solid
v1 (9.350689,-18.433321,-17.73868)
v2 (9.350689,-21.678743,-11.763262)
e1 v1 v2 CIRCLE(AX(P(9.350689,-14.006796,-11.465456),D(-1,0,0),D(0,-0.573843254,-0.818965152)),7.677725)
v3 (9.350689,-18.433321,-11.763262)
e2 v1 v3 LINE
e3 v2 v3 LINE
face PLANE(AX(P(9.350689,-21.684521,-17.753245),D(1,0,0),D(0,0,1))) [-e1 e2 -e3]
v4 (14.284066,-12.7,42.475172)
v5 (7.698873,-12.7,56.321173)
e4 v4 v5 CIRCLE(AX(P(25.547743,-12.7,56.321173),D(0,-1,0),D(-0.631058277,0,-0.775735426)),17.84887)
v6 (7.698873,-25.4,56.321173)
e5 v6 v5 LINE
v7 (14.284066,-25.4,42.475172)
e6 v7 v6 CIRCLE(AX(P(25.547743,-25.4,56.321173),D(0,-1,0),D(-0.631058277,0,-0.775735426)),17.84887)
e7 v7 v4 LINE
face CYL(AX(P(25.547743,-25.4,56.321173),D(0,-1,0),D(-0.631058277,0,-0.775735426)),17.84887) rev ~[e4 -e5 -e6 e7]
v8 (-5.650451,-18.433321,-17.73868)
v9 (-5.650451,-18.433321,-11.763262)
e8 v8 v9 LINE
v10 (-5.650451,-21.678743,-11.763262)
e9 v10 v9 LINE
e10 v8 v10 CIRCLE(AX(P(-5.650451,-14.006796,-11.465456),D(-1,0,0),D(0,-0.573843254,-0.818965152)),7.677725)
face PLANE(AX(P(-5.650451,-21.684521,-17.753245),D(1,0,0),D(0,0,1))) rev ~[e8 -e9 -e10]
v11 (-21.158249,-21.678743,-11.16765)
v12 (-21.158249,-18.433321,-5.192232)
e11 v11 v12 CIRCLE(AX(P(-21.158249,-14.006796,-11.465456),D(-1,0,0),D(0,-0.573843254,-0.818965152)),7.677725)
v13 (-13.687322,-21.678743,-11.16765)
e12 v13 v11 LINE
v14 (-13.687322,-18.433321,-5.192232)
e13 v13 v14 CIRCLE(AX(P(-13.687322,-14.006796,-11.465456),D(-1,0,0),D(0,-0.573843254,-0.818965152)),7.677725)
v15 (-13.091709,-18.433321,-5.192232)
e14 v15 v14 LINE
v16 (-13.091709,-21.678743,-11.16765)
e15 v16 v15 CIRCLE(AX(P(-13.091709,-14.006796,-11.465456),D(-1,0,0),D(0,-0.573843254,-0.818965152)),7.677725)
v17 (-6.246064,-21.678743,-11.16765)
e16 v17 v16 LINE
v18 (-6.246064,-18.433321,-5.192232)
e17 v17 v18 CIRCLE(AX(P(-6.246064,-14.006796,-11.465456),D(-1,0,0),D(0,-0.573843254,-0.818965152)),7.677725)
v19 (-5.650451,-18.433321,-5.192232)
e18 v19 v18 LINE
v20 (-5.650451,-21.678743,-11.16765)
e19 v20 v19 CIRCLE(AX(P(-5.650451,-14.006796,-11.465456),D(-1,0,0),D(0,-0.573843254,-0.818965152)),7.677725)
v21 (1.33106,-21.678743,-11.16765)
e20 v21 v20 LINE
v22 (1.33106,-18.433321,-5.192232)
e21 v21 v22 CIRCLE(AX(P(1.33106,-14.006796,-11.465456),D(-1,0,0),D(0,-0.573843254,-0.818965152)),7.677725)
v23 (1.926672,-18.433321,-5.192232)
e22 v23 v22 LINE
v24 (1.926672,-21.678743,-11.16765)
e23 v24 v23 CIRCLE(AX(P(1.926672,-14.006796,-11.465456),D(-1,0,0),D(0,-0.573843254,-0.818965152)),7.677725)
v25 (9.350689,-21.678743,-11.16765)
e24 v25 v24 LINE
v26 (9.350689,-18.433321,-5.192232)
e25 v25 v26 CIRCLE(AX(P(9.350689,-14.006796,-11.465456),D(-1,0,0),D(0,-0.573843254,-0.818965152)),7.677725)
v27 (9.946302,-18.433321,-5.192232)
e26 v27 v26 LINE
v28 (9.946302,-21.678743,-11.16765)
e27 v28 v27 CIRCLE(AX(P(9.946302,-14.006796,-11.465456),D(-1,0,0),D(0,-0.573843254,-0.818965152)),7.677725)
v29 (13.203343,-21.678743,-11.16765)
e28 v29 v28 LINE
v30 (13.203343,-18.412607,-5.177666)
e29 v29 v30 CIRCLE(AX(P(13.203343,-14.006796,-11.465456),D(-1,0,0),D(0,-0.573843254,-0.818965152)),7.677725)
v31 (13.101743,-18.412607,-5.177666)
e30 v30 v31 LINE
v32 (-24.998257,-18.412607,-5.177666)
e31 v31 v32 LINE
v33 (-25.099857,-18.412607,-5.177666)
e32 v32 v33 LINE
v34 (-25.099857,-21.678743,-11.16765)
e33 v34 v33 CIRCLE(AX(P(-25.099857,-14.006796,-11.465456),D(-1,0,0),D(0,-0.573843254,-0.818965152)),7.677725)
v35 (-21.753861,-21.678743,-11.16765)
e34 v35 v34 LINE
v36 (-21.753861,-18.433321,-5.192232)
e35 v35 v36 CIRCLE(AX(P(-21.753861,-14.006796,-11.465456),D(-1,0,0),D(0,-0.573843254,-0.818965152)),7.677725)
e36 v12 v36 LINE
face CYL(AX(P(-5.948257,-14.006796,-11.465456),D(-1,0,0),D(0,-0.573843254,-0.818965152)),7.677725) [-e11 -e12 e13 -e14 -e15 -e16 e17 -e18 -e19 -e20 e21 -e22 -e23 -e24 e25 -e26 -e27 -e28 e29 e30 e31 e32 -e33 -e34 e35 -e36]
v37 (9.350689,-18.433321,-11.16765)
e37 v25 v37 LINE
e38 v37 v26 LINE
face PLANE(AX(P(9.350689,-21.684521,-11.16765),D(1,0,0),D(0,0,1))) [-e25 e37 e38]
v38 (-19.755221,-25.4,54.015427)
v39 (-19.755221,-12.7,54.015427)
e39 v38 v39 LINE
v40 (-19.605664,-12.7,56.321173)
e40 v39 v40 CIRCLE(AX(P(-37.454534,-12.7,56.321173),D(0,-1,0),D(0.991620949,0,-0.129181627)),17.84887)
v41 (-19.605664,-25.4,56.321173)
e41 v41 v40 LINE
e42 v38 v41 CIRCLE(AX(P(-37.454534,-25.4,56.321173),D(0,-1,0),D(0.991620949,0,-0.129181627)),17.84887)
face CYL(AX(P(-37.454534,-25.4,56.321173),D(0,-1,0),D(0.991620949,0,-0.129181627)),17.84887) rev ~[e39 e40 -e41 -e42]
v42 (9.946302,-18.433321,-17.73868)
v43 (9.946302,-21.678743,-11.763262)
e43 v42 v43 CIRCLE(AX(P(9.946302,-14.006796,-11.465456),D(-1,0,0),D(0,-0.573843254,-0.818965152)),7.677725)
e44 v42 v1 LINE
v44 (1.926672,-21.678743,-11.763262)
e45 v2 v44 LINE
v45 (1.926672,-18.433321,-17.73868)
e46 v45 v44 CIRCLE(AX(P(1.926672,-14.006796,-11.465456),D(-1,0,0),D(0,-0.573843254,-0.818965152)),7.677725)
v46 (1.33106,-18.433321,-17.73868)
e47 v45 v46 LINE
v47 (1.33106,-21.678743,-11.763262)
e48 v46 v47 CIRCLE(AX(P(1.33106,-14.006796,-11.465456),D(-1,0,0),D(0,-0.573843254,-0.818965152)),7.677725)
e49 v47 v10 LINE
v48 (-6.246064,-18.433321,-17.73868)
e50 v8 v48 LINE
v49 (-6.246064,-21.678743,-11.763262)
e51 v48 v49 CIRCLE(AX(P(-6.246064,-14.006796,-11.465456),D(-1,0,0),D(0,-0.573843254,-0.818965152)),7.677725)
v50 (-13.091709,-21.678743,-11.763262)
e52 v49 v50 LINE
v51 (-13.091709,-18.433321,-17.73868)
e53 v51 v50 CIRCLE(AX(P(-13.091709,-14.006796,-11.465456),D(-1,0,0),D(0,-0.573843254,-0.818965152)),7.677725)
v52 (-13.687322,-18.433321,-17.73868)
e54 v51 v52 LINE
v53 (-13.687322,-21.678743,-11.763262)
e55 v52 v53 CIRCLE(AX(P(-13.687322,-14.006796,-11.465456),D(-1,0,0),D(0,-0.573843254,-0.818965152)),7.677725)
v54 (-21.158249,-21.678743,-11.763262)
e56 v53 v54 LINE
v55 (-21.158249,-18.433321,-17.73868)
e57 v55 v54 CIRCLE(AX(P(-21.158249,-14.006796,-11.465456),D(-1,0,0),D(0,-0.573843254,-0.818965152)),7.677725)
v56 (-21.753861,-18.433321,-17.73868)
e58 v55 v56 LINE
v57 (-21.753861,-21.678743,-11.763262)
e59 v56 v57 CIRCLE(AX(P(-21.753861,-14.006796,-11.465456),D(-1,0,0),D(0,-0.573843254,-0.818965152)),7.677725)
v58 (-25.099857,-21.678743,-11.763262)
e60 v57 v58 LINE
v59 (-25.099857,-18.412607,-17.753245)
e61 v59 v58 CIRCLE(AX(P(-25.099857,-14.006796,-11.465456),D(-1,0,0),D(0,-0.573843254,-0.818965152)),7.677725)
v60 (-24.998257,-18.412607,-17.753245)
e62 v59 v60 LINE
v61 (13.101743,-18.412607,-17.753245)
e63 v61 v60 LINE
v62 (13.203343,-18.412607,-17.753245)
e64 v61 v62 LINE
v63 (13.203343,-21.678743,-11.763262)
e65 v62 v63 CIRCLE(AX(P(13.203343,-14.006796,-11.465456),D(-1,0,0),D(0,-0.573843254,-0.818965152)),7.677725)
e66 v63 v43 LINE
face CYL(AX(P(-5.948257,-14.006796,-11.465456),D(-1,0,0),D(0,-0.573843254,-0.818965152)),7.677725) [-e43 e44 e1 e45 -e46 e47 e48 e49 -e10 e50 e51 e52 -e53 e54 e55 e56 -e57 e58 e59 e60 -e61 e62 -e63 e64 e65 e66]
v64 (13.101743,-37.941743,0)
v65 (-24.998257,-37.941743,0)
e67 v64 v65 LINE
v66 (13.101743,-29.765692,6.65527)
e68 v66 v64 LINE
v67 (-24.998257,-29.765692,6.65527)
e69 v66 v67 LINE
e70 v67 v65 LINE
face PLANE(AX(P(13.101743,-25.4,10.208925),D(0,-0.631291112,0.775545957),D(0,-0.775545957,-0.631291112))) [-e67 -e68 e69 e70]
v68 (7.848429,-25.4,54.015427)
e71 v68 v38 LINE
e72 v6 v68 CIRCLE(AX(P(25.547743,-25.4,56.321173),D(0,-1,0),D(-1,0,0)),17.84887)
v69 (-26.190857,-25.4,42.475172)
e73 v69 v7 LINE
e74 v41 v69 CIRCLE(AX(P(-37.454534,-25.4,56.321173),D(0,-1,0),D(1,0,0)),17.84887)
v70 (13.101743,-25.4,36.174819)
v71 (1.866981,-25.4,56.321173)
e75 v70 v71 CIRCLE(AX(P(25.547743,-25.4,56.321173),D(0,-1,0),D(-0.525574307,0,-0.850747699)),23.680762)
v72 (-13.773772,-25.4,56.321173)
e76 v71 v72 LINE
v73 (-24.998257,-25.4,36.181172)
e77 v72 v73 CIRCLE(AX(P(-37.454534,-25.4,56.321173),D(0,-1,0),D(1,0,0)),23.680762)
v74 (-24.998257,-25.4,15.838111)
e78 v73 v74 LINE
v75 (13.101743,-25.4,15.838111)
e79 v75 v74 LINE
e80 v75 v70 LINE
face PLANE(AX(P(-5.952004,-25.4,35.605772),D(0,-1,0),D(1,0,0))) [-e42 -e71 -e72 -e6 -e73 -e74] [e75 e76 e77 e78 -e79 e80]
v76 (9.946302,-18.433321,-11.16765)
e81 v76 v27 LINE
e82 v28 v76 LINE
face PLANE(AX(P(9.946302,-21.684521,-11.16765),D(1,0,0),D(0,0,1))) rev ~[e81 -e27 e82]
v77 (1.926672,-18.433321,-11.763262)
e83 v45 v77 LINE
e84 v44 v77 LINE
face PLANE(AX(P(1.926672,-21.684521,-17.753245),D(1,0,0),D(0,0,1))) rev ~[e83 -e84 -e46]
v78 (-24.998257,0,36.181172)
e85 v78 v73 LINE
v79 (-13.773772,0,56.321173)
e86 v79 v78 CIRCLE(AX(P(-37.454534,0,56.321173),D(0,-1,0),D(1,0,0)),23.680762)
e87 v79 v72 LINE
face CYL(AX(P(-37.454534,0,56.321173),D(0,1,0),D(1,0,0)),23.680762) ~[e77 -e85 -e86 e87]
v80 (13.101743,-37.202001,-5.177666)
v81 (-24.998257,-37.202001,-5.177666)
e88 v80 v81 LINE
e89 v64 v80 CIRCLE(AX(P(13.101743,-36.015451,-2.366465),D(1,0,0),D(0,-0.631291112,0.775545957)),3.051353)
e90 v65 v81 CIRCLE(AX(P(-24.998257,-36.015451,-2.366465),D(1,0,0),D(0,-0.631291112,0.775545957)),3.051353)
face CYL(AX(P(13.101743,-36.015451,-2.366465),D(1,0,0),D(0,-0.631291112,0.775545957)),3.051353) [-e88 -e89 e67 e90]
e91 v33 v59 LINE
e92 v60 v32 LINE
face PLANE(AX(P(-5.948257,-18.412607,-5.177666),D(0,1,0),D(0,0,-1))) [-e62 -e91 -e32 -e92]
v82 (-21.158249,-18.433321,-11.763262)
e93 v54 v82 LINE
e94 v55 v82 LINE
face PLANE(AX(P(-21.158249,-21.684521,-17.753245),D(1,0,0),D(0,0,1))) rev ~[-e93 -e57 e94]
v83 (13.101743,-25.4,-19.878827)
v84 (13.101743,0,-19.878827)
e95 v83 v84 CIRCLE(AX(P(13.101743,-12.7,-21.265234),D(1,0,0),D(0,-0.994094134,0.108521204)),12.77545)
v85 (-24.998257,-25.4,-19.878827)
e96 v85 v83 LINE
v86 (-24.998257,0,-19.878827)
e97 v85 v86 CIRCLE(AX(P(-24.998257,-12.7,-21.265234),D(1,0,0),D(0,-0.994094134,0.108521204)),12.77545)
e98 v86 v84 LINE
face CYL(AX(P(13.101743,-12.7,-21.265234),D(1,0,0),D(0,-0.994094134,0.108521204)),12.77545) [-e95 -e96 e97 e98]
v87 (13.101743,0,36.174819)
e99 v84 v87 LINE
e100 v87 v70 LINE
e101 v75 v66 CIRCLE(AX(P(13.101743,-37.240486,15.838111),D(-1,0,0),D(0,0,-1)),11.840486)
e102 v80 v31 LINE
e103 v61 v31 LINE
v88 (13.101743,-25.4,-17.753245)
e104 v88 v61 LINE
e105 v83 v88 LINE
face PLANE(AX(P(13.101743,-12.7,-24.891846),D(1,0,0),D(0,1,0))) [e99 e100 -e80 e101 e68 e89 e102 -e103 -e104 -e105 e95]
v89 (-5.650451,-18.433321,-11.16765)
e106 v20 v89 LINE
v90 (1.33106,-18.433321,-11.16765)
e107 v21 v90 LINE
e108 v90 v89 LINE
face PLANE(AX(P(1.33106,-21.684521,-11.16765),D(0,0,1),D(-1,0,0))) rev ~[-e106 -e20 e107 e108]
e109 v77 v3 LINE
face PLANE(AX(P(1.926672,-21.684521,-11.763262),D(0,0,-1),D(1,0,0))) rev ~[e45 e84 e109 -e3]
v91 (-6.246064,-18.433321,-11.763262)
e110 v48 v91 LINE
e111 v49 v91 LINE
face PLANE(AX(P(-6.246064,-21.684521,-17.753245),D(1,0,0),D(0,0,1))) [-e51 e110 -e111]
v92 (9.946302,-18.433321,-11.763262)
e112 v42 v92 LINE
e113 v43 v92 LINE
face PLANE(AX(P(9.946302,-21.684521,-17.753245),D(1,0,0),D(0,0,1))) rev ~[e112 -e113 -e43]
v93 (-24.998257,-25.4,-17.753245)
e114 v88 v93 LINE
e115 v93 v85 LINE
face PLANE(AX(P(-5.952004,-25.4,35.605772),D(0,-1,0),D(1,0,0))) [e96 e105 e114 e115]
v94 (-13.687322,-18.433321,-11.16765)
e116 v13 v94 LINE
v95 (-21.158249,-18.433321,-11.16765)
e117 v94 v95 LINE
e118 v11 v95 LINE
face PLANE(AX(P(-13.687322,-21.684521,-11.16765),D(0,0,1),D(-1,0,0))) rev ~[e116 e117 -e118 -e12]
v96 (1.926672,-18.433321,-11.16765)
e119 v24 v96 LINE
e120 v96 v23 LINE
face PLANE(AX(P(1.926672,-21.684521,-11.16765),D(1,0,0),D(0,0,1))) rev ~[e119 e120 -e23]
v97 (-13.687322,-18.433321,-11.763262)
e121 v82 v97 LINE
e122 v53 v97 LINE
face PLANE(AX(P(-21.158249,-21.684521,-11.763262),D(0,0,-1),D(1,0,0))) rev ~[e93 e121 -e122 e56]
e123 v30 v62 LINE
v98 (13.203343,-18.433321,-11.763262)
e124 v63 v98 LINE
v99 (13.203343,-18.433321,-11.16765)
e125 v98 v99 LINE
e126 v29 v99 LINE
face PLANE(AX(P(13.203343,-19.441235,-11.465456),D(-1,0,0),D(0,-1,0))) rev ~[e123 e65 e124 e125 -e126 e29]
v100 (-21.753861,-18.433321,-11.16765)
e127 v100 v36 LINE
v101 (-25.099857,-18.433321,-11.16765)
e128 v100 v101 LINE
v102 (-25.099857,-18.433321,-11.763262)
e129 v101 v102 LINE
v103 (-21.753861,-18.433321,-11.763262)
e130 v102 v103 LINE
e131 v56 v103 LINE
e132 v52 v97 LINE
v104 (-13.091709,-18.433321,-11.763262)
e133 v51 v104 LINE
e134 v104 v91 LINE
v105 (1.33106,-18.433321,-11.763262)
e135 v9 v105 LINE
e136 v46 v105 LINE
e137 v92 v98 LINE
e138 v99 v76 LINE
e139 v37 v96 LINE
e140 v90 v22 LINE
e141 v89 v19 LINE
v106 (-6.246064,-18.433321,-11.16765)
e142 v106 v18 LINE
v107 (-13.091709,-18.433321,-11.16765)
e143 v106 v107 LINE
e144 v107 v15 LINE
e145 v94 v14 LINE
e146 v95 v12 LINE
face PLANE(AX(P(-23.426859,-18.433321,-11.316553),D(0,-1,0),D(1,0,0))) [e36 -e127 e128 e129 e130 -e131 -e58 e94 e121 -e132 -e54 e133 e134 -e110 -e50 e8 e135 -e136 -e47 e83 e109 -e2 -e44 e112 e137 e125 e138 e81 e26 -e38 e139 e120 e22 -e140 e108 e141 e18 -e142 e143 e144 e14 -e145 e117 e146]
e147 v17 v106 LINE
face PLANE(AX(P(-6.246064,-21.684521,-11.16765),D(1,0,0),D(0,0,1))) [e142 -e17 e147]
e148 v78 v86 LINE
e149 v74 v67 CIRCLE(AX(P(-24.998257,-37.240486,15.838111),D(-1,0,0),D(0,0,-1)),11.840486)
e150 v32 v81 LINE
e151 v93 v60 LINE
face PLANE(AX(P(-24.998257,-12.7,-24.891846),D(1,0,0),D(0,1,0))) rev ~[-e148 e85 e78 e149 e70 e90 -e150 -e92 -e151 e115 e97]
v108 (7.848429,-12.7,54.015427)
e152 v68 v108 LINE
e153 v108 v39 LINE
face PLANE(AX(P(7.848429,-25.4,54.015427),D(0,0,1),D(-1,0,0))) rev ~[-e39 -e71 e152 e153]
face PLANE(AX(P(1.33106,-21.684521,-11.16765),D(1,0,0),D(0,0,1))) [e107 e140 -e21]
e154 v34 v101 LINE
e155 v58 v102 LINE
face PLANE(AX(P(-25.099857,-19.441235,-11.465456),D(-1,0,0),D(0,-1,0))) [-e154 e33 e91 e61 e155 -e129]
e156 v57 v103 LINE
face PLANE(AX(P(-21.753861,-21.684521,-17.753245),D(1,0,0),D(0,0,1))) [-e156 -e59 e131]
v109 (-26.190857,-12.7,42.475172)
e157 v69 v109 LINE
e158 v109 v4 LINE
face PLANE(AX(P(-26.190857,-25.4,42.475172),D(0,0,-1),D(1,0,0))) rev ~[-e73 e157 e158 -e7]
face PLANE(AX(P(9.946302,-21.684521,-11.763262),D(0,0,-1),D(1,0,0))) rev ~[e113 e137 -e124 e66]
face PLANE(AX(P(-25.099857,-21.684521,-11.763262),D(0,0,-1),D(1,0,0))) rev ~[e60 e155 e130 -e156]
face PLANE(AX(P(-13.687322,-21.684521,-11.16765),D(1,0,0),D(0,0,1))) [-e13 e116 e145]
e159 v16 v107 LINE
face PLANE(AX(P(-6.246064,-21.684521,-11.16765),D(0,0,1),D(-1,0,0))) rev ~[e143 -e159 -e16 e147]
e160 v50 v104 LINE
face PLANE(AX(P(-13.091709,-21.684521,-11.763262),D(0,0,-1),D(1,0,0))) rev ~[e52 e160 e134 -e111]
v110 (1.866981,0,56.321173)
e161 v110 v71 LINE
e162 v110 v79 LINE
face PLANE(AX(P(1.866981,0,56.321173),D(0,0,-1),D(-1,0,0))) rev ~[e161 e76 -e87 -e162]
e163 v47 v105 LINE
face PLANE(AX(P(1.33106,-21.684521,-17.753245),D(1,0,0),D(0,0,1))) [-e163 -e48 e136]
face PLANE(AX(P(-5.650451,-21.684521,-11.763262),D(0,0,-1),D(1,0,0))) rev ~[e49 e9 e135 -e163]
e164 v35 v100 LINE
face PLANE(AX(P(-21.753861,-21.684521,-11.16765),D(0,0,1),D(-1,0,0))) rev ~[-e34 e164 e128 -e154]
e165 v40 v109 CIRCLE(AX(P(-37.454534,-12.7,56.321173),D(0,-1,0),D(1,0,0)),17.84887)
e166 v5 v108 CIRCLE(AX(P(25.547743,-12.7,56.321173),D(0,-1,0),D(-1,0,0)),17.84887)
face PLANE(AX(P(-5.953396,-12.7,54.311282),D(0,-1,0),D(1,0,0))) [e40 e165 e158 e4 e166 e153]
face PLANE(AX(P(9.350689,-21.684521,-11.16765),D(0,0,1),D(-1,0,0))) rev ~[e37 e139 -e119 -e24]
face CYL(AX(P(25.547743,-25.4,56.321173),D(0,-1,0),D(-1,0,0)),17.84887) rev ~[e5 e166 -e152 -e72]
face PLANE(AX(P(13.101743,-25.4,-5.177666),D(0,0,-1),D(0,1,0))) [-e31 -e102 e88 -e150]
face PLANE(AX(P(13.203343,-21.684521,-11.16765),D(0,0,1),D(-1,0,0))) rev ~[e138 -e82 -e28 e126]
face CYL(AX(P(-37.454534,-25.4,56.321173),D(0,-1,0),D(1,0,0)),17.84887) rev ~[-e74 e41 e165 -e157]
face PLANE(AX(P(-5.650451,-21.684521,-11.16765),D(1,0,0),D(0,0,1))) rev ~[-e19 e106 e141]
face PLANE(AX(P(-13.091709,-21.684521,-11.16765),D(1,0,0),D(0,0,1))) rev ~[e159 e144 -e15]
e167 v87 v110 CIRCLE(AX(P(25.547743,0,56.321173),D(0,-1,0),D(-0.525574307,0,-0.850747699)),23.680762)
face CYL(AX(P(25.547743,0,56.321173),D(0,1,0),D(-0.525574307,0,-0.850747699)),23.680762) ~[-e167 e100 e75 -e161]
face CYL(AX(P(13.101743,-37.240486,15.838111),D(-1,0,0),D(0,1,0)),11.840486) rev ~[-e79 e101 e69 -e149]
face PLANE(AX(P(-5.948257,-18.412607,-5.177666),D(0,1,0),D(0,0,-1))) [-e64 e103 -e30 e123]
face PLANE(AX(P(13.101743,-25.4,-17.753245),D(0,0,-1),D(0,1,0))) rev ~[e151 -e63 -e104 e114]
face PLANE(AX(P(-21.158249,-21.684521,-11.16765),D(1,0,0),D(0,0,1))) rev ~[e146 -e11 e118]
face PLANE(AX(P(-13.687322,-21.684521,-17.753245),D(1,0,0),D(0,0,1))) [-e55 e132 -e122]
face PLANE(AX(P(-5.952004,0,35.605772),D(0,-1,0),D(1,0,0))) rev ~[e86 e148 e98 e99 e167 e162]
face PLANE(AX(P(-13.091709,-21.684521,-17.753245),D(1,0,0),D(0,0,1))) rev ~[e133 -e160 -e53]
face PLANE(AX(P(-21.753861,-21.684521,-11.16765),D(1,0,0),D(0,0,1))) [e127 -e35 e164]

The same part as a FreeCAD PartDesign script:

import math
import FreeCAD as App
import Part
import Sketcher
from FreeCAD import Vector
Q = App.Units.Quantity


def edges_at(feature, points):
    """Names of the edges that pass closest to the given points."""
    edges = feature.Shape.Edges
    near = lambda p: min(range(len(edges)), key=lambda i: edges[i].distToShape(Part.Vertex(*p))[0])
    return sorted({f"Edge{near(p) + 1}" for p in points})

doc = App.newDocument("Part")
body = doc.addObject("PartDesign::Body", "Body")

# Sketch on XZ plane
sketch1 = body.newObject("Sketcher::SketchObject", "Sketch")
sketch1.AttachmentSupport = (doc.getObject("XZ_Plane"), [""])
sketch1.MapMode = "FlatFace"
sketch1.addGeometry(Part.LineSegment(Vector(2, 56, 0), Vector(-14, 56, 0)), False)
sketch1.addGeometry(Part.ArcOfCircle(Part.Circle(Vector(-37, 56, 0), Vector(0, 0, 1), 24), math.radians(0), math.radians(302)), False)
sketch1.addGeometry(Part.LineSegment(Vector(-25, 36, 0), Vector(-25, -20, 0)), False)
sketch1.addGeometry(Part.LineSegment(Vector(-25, -20, 0), Vector(13, -20, 0)), False)
sketch1.addGeometry(Part.LineSegment(Vector(13, -20, 0), Vector(13, 36, 0)), False)
sketch1.addGeometry(Part.ArcOfCircle(Part.Circle(Vector(26, 56, 0), Vector(0, 0, 1), 24), math.radians(-122), math.radians(180)), False)
sketch1.addConstraint(Sketcher.Constraint("Coincident", 0, 2, 1, 1))
sketch1.addConstraint(Sketcher.Constraint("Coincident", 1, 2, 2, 1))
sketch1.addConstraint(Sketcher.Constraint("Coincident", 2, 2, 3, 1))
sketch1.addConstraint(Sketcher.Constraint("Coincident", 3, 2, 4, 1))
sketch1.addConstraint(Sketcher.Constraint("Coincident", 4, 2, 5, 1))
sketch1.addConstraint(Sketcher.Constraint("Coincident", 5, 2, 0, 1))
sketch1.addConstraint(Sketcher.Constraint("Horizontal", 0))
sketch1.addConstraint(Sketcher.Constraint("Vertical", 2))
sketch1.addConstraint(Sketcher.Constraint("Horizontal", 3))
sketch1.addConstraint(Sketcher.Constraint("Vertical", 4))
sketch1.addConstraint(Sketcher.Constraint("Equal", 1, 5))
sketch1.addConstraint(Sketcher.Constraint("Horizontal", 1, 3, 5, 3))
sketch1.addConstraint(Sketcher.Constraint("Horizontal", 5, 3, 0, 2))
sketch1.addConstraint(Sketcher.Constraint("DistanceX", 3, 1, 3, 2, Q("1.5 in")))
sketch1.addConstraint(Sketcher.Constraint("DistanceY", 2, 2, 0, 2, Q("3 in")))
sketch1.addConstraint(Sketcher.Constraint("DistanceX", 1, 2, 5, 3, Q("1.99 in")))
sketch1.addConstraint(Sketcher.Constraint("Radius", 1, Q("23.680762 mm")))
sketch1.addConstraint(Sketcher.Constraint("DistanceY", 2, 2, 2, 1, Q("56.059999 mm")))
sketch1.addConstraint(Sketcher.Constraint("DistanceY", -1, 1, 1, 2, Q("36.181172 mm")))
sketch1.addConstraint(Sketcher.Constraint("DistanceX", -1, 1, 5, 2, Q("1.866981 mm")))
pad1 = body.newObject("PartDesign::Pad", "Pad")
pad1.Profile = sketch1
pad1.Length = Q("1 in")

# Sketch on YZ plane
sketch2 = body.newObject("Sketcher::SketchObject", "Sketch001")
sketch2.AttachmentSupport = (doc.getObject("YZ_Plane"), [""])
sketch2.MapMode = "FlatFace"
sketch2.AttachmentOffset = App.Placement(Vector(0, 0, 13.101743), App.Rotation())
sketch2.addGeometry(Part.LineSegment(Vector(0, -20, 0), Vector(-25, -20, 0)), False)
sketch2.addGeometry(Part.ArcOfCircle(Part.Circle(Vector(-13, -21, 0), Vector(0, 0, 1), 13), math.radians(174), math.radians(366)), False)
sketch2.addConstraint(Sketcher.Constraint("Coincident", 0, 1, 1, 2))
sketch2.addConstraint(Sketcher.Constraint("Coincident", 1, 1, 0, 2))
sketch2.addConstraint(Sketcher.Constraint("Horizontal", 0))
sketch2.addConstraint(Sketcher.Constraint("PointOnObject", 0, 1, -2))
sketch2.addConstraint(Sketcher.Constraint("DistanceX", 0, 2, 0, 1, Q("1 in")))
sketch2.addConstraint(Sketcher.Constraint("Radius", 1, Q("12.77545 mm")))
sketch2.addConstraint(Sketcher.Constraint("DistanceY", 1, 3, -1, 1, Q("21.265234 mm")))
pad2 = body.newObject("PartDesign::Pad", "Pad001")
pad2.Profile = sketch2
pad2.Length = Q("1.5 in")
pad2.Reversed = True

# Sketch on YZ plane
sketch3 = body.newObject("Sketcher::SketchObject", "Sketch002")
sketch3.AttachmentSupport = (doc.getObject("YZ_Plane"), [""])
sketch3.MapMode = "FlatFace"
sketch3.AttachmentOffset = App.Placement(Vector(0, 0, 13.101743), App.Rotation())
sketch3.addGeometry(Part.LineSegment(Vector(-25.4, -5.2, 0), Vector(-25.4, 10.2, 0)), False)
sketch3.addGeometry(Part.LineSegment(Vector(-25.4, 10.2, 0), Vector(-37.9, 0, 0)), False)
sketch3.addGeometry(Part.ArcOfCircle(Part.Circle(Vector(-36, -2.4, 0), Vector(0, 0, 1), 3.1), math.radians(129), math.radians(247)), False)
sketch3.addGeometry(Part.LineSegment(Vector(-37.2, -5.2, 0), Vector(-25.4, -5.2, 0)), False)
sketch3.addConstraint(Sketcher.Constraint("Coincident", 0, 2, 1, 1))
sketch3.addConstraint(Sketcher.Constraint("Tangent", 1, 2, 2, 1))
sketch3.addConstraint(Sketcher.Constraint("Coincident", 2, 2, 3, 1))
sketch3.addConstraint(Sketcher.Constraint("Coincident", 3, 2, 0, 1))
sketch3.addConstraint(Sketcher.Constraint("Vertical", 0))
sketch3.addConstraint(Sketcher.Constraint("Horizontal", 3))
sketch3.addConstraint(Sketcher.Constraint("PointOnObject", 1, 2, -1))
sketch3.addConstraint(Sketcher.Constraint("DistanceX", 0, 2, -1, 1, Q("1 in")))
sketch3.addConstraint(Sketcher.Constraint("DistanceX", 3, 1, 3, 2, Q("11.802001 mm")))
sketch3.addConstraint(Sketcher.Constraint("Radius", 2, Q("3.051353 mm")))
sketch3.addConstraint(Sketcher.Constraint("Distance", 1, Q("16.171502 mm")))
sketch3.addConstraint(Sketcher.Constraint("DistanceY", 0, 1, 0, 2, Q("15.386592 mm")))
pad3 = body.newObject("PartDesign::Pad", "Pad002")
pad3.Profile = sketch3
pad3.Length = Q("1.5 in")
pad3.Reversed = True

# Sketch on YZ plane
sketch4 = body.newObject("Sketcher::SketchObject", "Sketch003")
sketch4.AttachmentSupport = (doc.getObject("YZ_Plane"), [""])
sketch4.MapMode = "FlatFace"
sketch4.AttachmentOffset = App.Placement(Vector(0, 0, 13.101743), App.Rotation())
sketch4.addGeometry(Part.LineSegment(Vector(-25, -5, 0), Vector(-25, -18, 0)), False)
sketch4.addGeometry(Part.LineSegment(Vector(-25, -18, 0), Vector(-18, -18, 0)), False)
sketch4.addGeometry(Part.LineSegment(Vector(-18, -18, 0), Vector(-18, -5, 0)), False)
sketch4.addGeometry(Part.LineSegment(Vector(-18, -5, 0), Vector(-25, -5, 0)), False)
sketch4.addConstraint(Sketcher.Constraint("Coincident", 0, 2, 1, 1))
sketch4.addConstraint(Sketcher.Constraint("Coincident", 1, 2, 2, 1))
sketch4.addConstraint(Sketcher.Constraint("Coincident", 2, 2, 3, 1))
sketch4.addConstraint(Sketcher.Constraint("Coincident", 3, 2, 0, 1))
sketch4.addConstraint(Sketcher.Constraint("Vertical", 0))
sketch4.addConstraint(Sketcher.Constraint("Horizontal", 1))
sketch4.addConstraint(Sketcher.Constraint("Vertical", 2))
sketch4.addConstraint(Sketcher.Constraint("Horizontal", 3))
sketch4.addConstraint(Sketcher.Constraint("DistanceX", 0, 2, -1, 1, Q("1 in")))
sketch4.addConstraint(Sketcher.Constraint("DistanceY", 0, 2, 0, 1, Q("12.575579 mm")))
sketch4.addConstraint(Sketcher.Constraint("DistanceX", 1, 1, 1, 2, Q("6.987393 mm")))
sketch4.addConstraint(Sketcher.Constraint("DistanceY", 0, 2, -1, 1, Q("17.753245 mm")))
pocket1 = body.newObject("PartDesign::Pocket", "Pocket")
pocket1.Profile = sketch4
pocket1.Type = "ThroughAll"

# Sketch on YZ plane
sketch5 = body.newObject("Sketcher::SketchObject", "Sketch004")
sketch5.AttachmentSupport = (doc.getObject("YZ_Plane"), [""])
sketch5.MapMode = "FlatFace"
sketch5.AttachmentOffset = App.Placement(Vector(0, 0, -5.948257), App.Rotation())
sketch5.addGeometry(Part.ArcOfCircle(Part.Circle(Vector(-14, -11, 0), Vector(0, 0, 1), 8), math.radians(125), math.radians(235)), False)
sketch5.addGeometry(Part.LineSegment(Vector(-18, -5, 0), Vector(-18, -18, 0)), False)
sketch5.addConstraint(Sketcher.Constraint("Coincident", 0, 1, 1, 1))
sketch5.addConstraint(Sketcher.Constraint("Coincident", 1, 2, 0, 2))
sketch5.addConstraint(Sketcher.Constraint("Vertical", 1))
sketch5.addConstraint(Sketcher.Constraint("Radius", 0, Q("7.677725 mm")))
sketch5.addConstraint(Sketcher.Constraint("DistanceY", 1, 2, 1, 1, Q("12.575579 mm")))
sketch5.addConstraint(Sketcher.Constraint("DistanceX", 0, 3, -1, 1, Q("14.006796 mm")))
sketch5.addConstraint(Sketcher.Constraint("DistanceY", 0, 3, -1, 1, Q("11.465456 mm")))
pad4 = body.newObject("PartDesign::Pad", "Pad003")
pad4.Profile = sketch5
pad4.Length = Q("1.508 in")
pad4.Midplane = True

# Sketch on XZ plane
sketch6 = body.newObject("Sketcher::SketchObject", "Sketch005")
sketch6.AttachmentSupport = (doc.getObject("XZ_Plane"), [""])
sketch6.MapMode = "FlatFace"
sketch6.AttachmentOffset = App.Placement(Vector(0, 0, 1 * 25.4), App.Rotation())
sketch6.addGeometry(Part.LineSegment(Vector(-26.2, 42.5, 0), Vector(14.3, 42.5, 0)), False)
sketch6.addGeometry(Part.ArcOfCircle(Part.Circle(Vector(25.5, 56.3, 0), Vector(0, 0, 1), 17.8), math.radians(-129), math.radians(180)), False)
sketch6.addGeometry(Part.ArcOfCircle(Part.Circle(Vector(25.5, 56.3, 0), Vector(0, 0, 1), 17.8), math.radians(180), math.radians(187.42)), False)
sketch6.addGeometry(Part.LineSegment(Vector(7.8, 54, 0), Vector(-19.8, 54, 0)), False)
sketch6.addGeometry(Part.ArcOfCircle(Part.Circle(Vector(-37.5, 56.3, 0), Vector(0, 0, 1), 17.8), math.radians(-7.42), math.radians(0)), False)
sketch6.addGeometry(Part.ArcOfCircle(Part.Circle(Vector(-37.5, 56.3, 0), Vector(0, 0, 1), 17.8), math.radians(0), math.radians(309)), False)
sketch6.addConstraint(Sketcher.Constraint("Coincident", 0, 2, 1, 1))
sketch6.addConstraint(Sketcher.Constraint("Tangent", 1, 2, 2, 1))
sketch6.addConstraint(Sketcher.Constraint("Coincident", 2, 2, 3, 1))
sketch6.addConstraint(Sketcher.Constraint("Coincident", 3, 2, 4, 1))
sketch6.addConstraint(Sketcher.Constraint("Tangent", 4, 2, 5, 1))
sketch6.addConstraint(Sketcher.Constraint("Coincident", 5, 2, 0, 1))
sketch6.addConstraint(Sketcher.Constraint("Horizontal", 0))
sketch6.addConstraint(Sketcher.Constraint("Horizontal", 3))
sketch6.addConstraint(Sketcher.Constraint("Equal", 1, 2))
sketch6.addConstraint(Sketcher.Constraint("Equal", 2, 4))
sketch6.addConstraint(Sketcher.Constraint("Equal", 4, 5))
sketch6.addConstraint(Sketcher.Constraint("Horizontal", 2, 3, 4, 3))
sketch6.addConstraint(Sketcher.Constraint("Horizontal", 5, 3, 1, 2))
sketch6.addConstraint(Sketcher.Constraint("Horizontal", 1, 2, 4, 2))
sketch6.addConstraint(Sketcher.Constraint("Radius", 1, Q("17.84887 mm")))
sketch6.addConstraint(Sketcher.Constraint("DistanceX", 3, 2, 3, 1, Q("27.60365 mm")))
sketch6.addConstraint(Sketcher.Constraint("DistanceY", 0, 2, 2, 3, Q("13.846001 mm")))
sketch6.addConstraint(Sketcher.Constraint("DistanceX", 4, 3, 0, 2, Q("51.7386 mm")))
sketch6.addConstraint(Sketcher.Constraint("DistanceX", -1, 1, 2, 2, Q("7.848429 mm")))
sketch6.addConstraint(Sketcher.Constraint("DistanceY", -1, 1, 1, 3, Q("56.321173 mm")))
pocket2 = body.newObject("PartDesign::Pocket", "Pocket001")
pocket2.Profile = sketch6
pocket2.Length = Q("0.5 in")

# Sketch on XZ plane
sketch7 = body.newObject("Sketcher::SketchObject", "Sketch006")
sketch7.AttachmentSupport = (doc.getObject("XZ_Plane"), [""])
sketch7.MapMode = "FlatFace"
sketch7.AttachmentOffset = App.Placement(Vector(0, 0, 21.684521), App.Rotation())
sketch7.addGeometry(Part.LineSegment(Vector(-25.1, -11.2, 0), Vector(-25.1, -11.8, 0)), False)
sketch7.addGeometry(Part.LineSegment(Vector(-25.1, -11.8, 0), Vector(-21.8, -11.8, 0)), False)
sketch7.addGeometry(Part.LineSegment(Vector(-21.8, -11.8, 0), Vector(-21.8, -17.8, 0)), False)
sketch7.addGeometry(Part.LineSegment(Vector(-21.8, -17.8, 0), Vector(-21.2, -17.8, 0)), False)
sketch7.addGeometry(Part.LineSegment(Vector(-21.2, -17.8, 0), Vector(-21.2, -11.8, 0)), False)
sketch7.addGeometry(Part.LineSegment(Vector(-21.2, -11.8, 0), Vector(-13.7, -11.8, 0)), False)
sketch7.addGeometry(Part.LineSegment(Vector(-13.7, -11.8, 0), Vector(-13.7, -17.8, 0)), False)
sketch7.addGeometry(Part.LineSegment(Vector(-13.7, -17.8, 0), Vector(-13.1, -17.8, 0)), False)
sketch7.addGeometry(Part.LineSegment(Vector(-13.1, -17.8, 0), Vector(-13.1, -11.8, 0)), False)
sketch7.addGeometry(Part.LineSegment(Vector(-13.1, -11.8, 0), Vector(-6.2, -11.8, 0)), False)
sketch7.addGeometry(Part.LineSegment(Vector(-6.2, -11.8, 0), Vector(-6.2, -17.8, 0)), False)
sketch7.addGeometry(Part.LineSegment(Vector(-6.2, -17.8, 0), Vector(-5.7, -17.8, 0)), False)
sketch7.addGeometry(Part.LineSegment(Vector(-5.7, -17.8, 0), Vector(-5.7, -11.8, 0)), False)
sketch7.addGeometry(Part.LineSegment(Vector(-5.7, -11.8, 0), Vector(1.3, -11.8, 0)), False)
sketch7.addGeometry(Part.LineSegment(Vector(1.3, -11.8, 0), Vector(1.3, -17.8, 0)), False)
sketch7.addGeometry(Part.LineSegment(Vector(1.3, -17.8, 0), Vector(1.9, -17.8, 0)), False)
sketch7.addGeometry(Part.LineSegment(Vector(1.9, -17.8, 0), Vector(1.9, -11.8, 0)), False)
sketch7.addGeometry(Part.LineSegment(Vector(1.9, -11.8, 0), Vector(9.4, -11.8, 0)), False)
sketch7.addGeometry(Part.LineSegment(Vector(9.4, -11.8, 0), Vector(9.4, -17.8, 0)), False)
sketch7.addGeometry(Part.LineSegment(Vector(9.4, -17.8, 0), Vector(9.9, -17.8, 0)), False)
sketch7.addGeometry(Part.LineSegment(Vector(9.9, -17.8, 0), Vector(9.9, -11.8, 0)), False)
sketch7.addGeometry(Part.LineSegment(Vector(9.9, -11.8, 0), Vector(13.2, -11.8, 0)), False)
sketch7.addGeometry(Part.LineSegment(Vector(13.2, -11.8, 0), Vector(13.2, -11.2, 0)), False)
sketch7.addGeometry(Part.LineSegment(Vector(13.2, -11.2, 0), Vector(9.9, -11.2, 0)), False)
sketch7.addGeometry(Part.LineSegment(Vector(9.9, -11.2, 0), Vector(9.9, -5.2, 0)), False)
sketch7.addGeometry(Part.LineSegment(Vector(9.9, -5.2, 0), Vector(9.4, -5.2, 0)), False)
sketch7.addGeometry(Part.LineSegment(Vector(9.4, -5.2, 0), Vector(9.4, -11.2, 0)), False)
sketch7.addGeometry(Part.LineSegment(Vector(9.4, -11.2, 0), Vector(1.9, -11.2, 0)), False)
sketch7.addGeometry(Part.LineSegment(Vector(1.9, -11.2, 0), Vector(1.9, -5.2, 0)), False)
sketch7.addGeometry(Part.LineSegment(Vector(1.9, -5.2, 0), Vector(1.3, -5.2, 0)), False)
sketch7.addGeometry(Part.LineSegment(Vector(1.3, -5.2, 0), Vector(1.3, -11.2, 0)), False)
sketch7.addGeometry(Part.LineSegment(Vector(1.3, -11.2, 0), Vector(-5.7, -11.2, 0)), False)
sketch7.addGeometry(Part.LineSegment(Vector(-5.7, -11.2, 0), Vector(-5.7, -5.2, 0)), False)
sketch7.addGeometry(Part.LineSegment(Vector(-5.7, -5.2, 0), Vector(-6.2, -5.2, 0)), False)
sketch7.addGeometry(Part.LineSegment(Vector(-6.2, -5.2, 0), Vector(-6.2, -11.2, 0)), False)
sketch7.addGeometry(Part.LineSegment(Vector(-6.2, -11.2, 0), Vector(-13.1, -11.2, 0)), False)
sketch7.addGeometry(Part.LineSegment(Vector(-13.1, -11.2, 0), Vector(-13.1, -5.2, 0)), False)
sketch7.addGeometry(Part.LineSegment(Vector(-13.1, -5.2, 0), Vector(-13.7, -5.2, 0)), False)
sketch7.addGeometry(Part.LineSegment(Vector(-13.7, -5.2, 0), Vector(-13.7, -11.2, 0)), False)
sketch7.addGeometry(Part.LineSegment(Vector(-13.7, -11.2, 0), Vector(-21.2, -11.2, 0)), False)
sketch7.addGeometry(Part.LineSegment(Vector(-21.2, -11.2, 0), Vector(-21.2, -5.2, 0)), False)
sketch7.addGeometry(Part.LineSegment(Vector(-21.2, -5.2, 0), Vector(-21.8, -5.2, 0)), False)
sketch7.addGeometry(Part.LineSegment(Vector(-21.8, -5.2, 0), Vector(-21.8, -11.2, 0)), False)
sketch7.addGeometry(Part.LineSegment(Vector(-21.8, -11.2, 0), Vector(-25.1, -11.2, 0)), False)
sketch7.addConstraint(Sketcher.Constraint("Coincident", 0, 2, 1, 1))
sketch7.addConstraint(Sketcher.Constraint("Coincident", 1, 2, 2, 1))
sketch7.addConstraint(Sketcher.Constraint("Coincident", 2, 2, 3, 1))
sketch7.addConstraint(Sketcher.Constraint("Coincident", 3, 2, 4, 1))
sketch7.addConstraint(Sketcher.Constraint("Coincident", 4, 2, 5, 1))
sketch7.addConstraint(Sketcher.Constraint("Coincident", 5, 2, 6, 1))
sketch7.addConstraint(Sketcher.Constraint("Coincident", 6, 2, 7, 1))
sketch7.addConstraint(Sketcher.Constraint("Coincident", 7, 2, 8, 1))
sketch7.addConstraint(Sketcher.Constraint("Coincident", 8, 2, 9, 1))
sketch7.addConstraint(Sketcher.Constraint("Coincident", 9, 2, 10, 1))
sketch7.addConstraint(Sketcher.Constraint("Coincident", 10, 2, 11, 1))
sketch7.addConstraint(Sketcher.Constraint("Coincident", 11, 2, 12, 1))
sketch7.addConstraint(Sketcher.Constraint("Coincident", 12, 2, 13, 1))
sketch7.addConstraint(Sketcher.Constraint("Coincident", 13, 2, 14, 1))
sketch7.addConstraint(Sketcher.Constraint("Coincident", 14, 2, 15, 1))
sketch7.addConstraint(Sketcher.Constraint("Coincident", 15, 2, 16, 1))
sketch7.addConstraint(Sketcher.Constraint("Coincident", 16, 2, 17, 1))
sketch7.addConstraint(Sketcher.Constraint("Coincident", 17, 2, 18, 1))
sketch7.addConstraint(Sketcher.Constraint("Coincident", 18, 2, 19, 1))
sketch7.addConstraint(Sketcher.Constraint("Coincident", 19, 2, 20, 1))
sketch7.addConstraint(Sketcher.Constraint("Coincident", 20, 2, 21, 1))
sketch7.addConstraint(Sketcher.Constraint("Coincident", 21, 2, 22, 1))
sketch7.addConstraint(Sketcher.Constraint("Coincident", 22, 2, 23, 1))
sketch7.addConstraint(Sketcher.Constraint("Coincident", 23, 2, 24, 1))
sketch7.addConstraint(Sketcher.Constraint("Coincident", 24, 2, 25, 1))
sketch7.addConstraint(Sketcher.Constraint("Coincident", 25, 2, 26, 1))
sketch7.addConstraint(Sketcher.Constraint("Coincident", 26, 2, 27, 1))
sketch7.addConstraint(Sketcher.Constraint("Coincident", 27, 2, 28, 1))
sketch7.addConstraint(Sketcher.Constraint("Coincident", 28, 2, 29, 1))
sketch7.addConstraint(Sketcher.Constraint("Coincident", 29, 2, 30, 1))
sketch7.addConstraint(Sketcher.Constraint("Coincident", 30, 2, 31, 1))
sketch7.addConstraint(Sketcher.Constraint("Coincident", 31, 2, 32, 1))
sketch7.addConstraint(Sketcher.Constraint("Coincident", 32, 2, 33, 1))
sketch7.addConstraint(Sketcher.Constraint("Coincident", 33, 2, 34, 1))
sketch7.addConstraint(Sketcher.Constraint("Coincident", 34, 2, 35, 1))
sketch7.addConstraint(Sketcher.Constraint("Coincident", 35, 2, 36, 1))
sketch7.addConstraint(Sketcher.Constraint("Coincident", 36, 2, 37, 1))
sketch7.addConstraint(Sketcher.Constraint("Coincident", 37, 2, 38, 1))
sketch7.addConstraint(Sketcher.Constraint("Coincident", 38, 2, 39, 1))
sketch7.addConstraint(Sketcher.Constraint("Coincident", 39, 2, 40, 1))
sketch7.addConstraint(Sketcher.Constraint("Coincident", 40, 2, 41, 1))
sketch7.addConstraint(Sketcher.Constraint("Coincident", 41, 2, 42, 1))
sketch7.addConstraint(Sketcher.Constraint("Coincident", 42, 2, 43, 1))
sketch7.addConstraint(Sketcher.Constraint("Coincident", 43, 2, 0, 1))
sketch7.addConstraint(Sketcher.Constraint("Vertical", 0))
sketch7.addConstraint(Sketcher.Constraint("Horizontal", 1))
sketch7.addConstraint(Sketcher.Constraint("Vertical", 2))
sketch7.addConstraint(Sketcher.Constraint("Horizontal", 3))
sketch7.addConstraint(Sketcher.Constraint("Vertical", 4))
sketch7.addConstraint(Sketcher.Constraint("Horizontal", 5))
sketch7.addConstraint(Sketcher.Constraint("Vertical", 6))
sketch7.addConstraint(Sketcher.Constraint("Horizontal", 7))
sketch7.addConstraint(Sketcher.Constraint("Vertical", 8))
sketch7.addConstraint(Sketcher.Constraint("Horizontal", 9))
sketch7.addConstraint(Sketcher.Constraint("Vertical", 10))
sketch7.addConstraint(Sketcher.Constraint("Horizontal", 11))
sketch7.addConstraint(Sketcher.Constraint("Vertical", 12))
sketch7.addConstraint(Sketcher.Constraint("Horizontal", 13))
sketch7.addConstraint(Sketcher.Constraint("Vertical", 14))
sketch7.addConstraint(Sketcher.Constraint("Horizontal", 15))
sketch7.addConstraint(Sketcher.Constraint("Vertical", 16))
sketch7.addConstraint(Sketcher.Constraint("Horizontal", 17))
sketch7.addConstraint(Sketcher.Constraint("Vertical", 18))
sketch7.addConstraint(Sketcher.Constraint("Horizontal", 19))
sketch7.addConstraint(Sketcher.Constraint("Vertical", 20))
sketch7.addConstraint(Sketcher.Constraint("Horizontal", 21))
sketch7.addConstraint(Sketcher.Constraint("Vertical", 22))
sketch7.addConstraint(Sketcher.Constraint("Horizontal", 23))
sketch7.addConstraint(Sketcher.Constraint("Vertical", 24))
sketch7.addConstraint(Sketcher.Constraint("Horizontal", 25))
sketch7.addConstraint(Sketcher.Constraint("Vertical", 26))
sketch7.addConstraint(Sketcher.Constraint("Horizontal", 27))
sketch7.addConstraint(Sketcher.Constraint("Vertical", 28))
sketch7.addConstraint(Sketcher.Constraint("Horizontal", 29))
sketch7.addConstraint(Sketcher.Constraint("Vertical", 30))
sketch7.addConstraint(Sketcher.Constraint("Horizontal", 31))
sketch7.addConstraint(Sketcher.Constraint("Vertical", 32))
sketch7.addConstraint(Sketcher.Constraint("Horizontal", 33))
sketch7.addConstraint(Sketcher.Constraint("Vertical", 34))
sketch7.addConstraint(Sketcher.Constraint("Horizontal", 35))
sketch7.addConstraint(Sketcher.Constraint("Vertical", 36))
sketch7.addConstraint(Sketcher.Constraint("Horizontal", 37))
sketch7.addConstraint(Sketcher.Constraint("Vertical", 38))
sketch7.addConstraint(Sketcher.Constraint("Horizontal", 39))
sketch7.addConstraint(Sketcher.Constraint("Vertical", 40))
sketch7.addConstraint(Sketcher.Constraint("Horizontal", 41))
sketch7.addConstraint(Sketcher.Constraint("Vertical", 42))
sketch7.addConstraint(Sketcher.Constraint("Horizontal", 43))
sketch7.addConstraint(Sketcher.Constraint("Horizontal", 1, 2, 4, 2))
sketch7.addConstraint(Sketcher.Constraint("Horizontal", 3, 2, 6, 2))
sketch7.addConstraint(Sketcher.Constraint("Horizontal", 5, 2, 8, 2))
sketch7.addConstraint(Sketcher.Constraint("Horizontal", 7, 2, 10, 2))
sketch7.addConstraint(Sketcher.Constraint("Horizontal", 9, 2, 12, 2))
sketch7.addConstraint(Sketcher.Constraint("Horizontal", 11, 2, 14, 2))
sketch7.addConstraint(Sketcher.Constraint("Horizontal", 13, 2, 16, 2))
sketch7.addConstraint(Sketcher.Constraint("Horizontal", 15, 2, 18, 2))
sketch7.addConstraint(Sketcher.Constraint("Horizontal", 17, 2, 20, 2))
sketch7.addConstraint(Sketcher.Constraint("Horizontal", 23, 2, 26, 2))
sketch7.addConstraint(Sketcher.Constraint("Horizontal", 25, 2, 28, 2))
sketch7.addConstraint(Sketcher.Constraint("Horizontal", 27, 2, 30, 2))
sketch7.addConstraint(Sketcher.Constraint("Horizontal", 29, 2, 32, 2))
sketch7.addConstraint(Sketcher.Constraint("Horizontal", 31, 2, 34, 2))
sketch7.addConstraint(Sketcher.Constraint("Horizontal", 33, 2, 36, 2))
sketch7.addConstraint(Sketcher.Constraint("Horizontal", 35, 2, 38, 2))
sketch7.addConstraint(Sketcher.Constraint("Horizontal", 37, 2, 40, 2))
sketch7.addConstraint(Sketcher.Constraint("Horizontal", 39, 2, 42, 2))
sketch7.addConstraint(Sketcher.Constraint("Vertical", 20, 2, 23, 2))
sketch7.addConstraint(Sketcher.Constraint("Vertical", 18, 2, 25, 2))
sketch7.addConstraint(Sketcher.Constraint("Vertical", 16, 2, 27, 2))
sketch7.addConstraint(Sketcher.Constraint("Vertical", 14, 2, 29, 2))
sketch7.addConstraint(Sketcher.Constraint("Vertical", 12, 2, 31, 2))
sketch7.addConstraint(Sketcher.Constraint("Vertical", 10, 2, 33, 2))
sketch7.addConstraint(Sketcher.Constraint("Vertical", 8, 2, 35, 2))
sketch7.addConstraint(Sketcher.Constraint("Vertical", 6, 2, 37, 2))
sketch7.addConstraint(Sketcher.Constraint("Vertical", 4, 2, 39, 2))
sketch7.addConstraint(Sketcher.Constraint("Vertical", 2, 2, 41, 2))
sketch7.addConstraint(Sketcher.Constraint("Equal", 3, 7))
sketch7.addConstraint(Sketcher.Constraint("Equal", 7, 11))
sketch7.addConstraint(Sketcher.Constraint("Equal", 11, 15))
sketch7.addConstraint(Sketcher.Constraint("Equal", 15, 19))
sketch7.addConstraint(Sketcher.Constraint("Equal", 41, 0))
sketch7.addConstraint(Sketcher.Constraint("Equal", 20, 24))
sketch7.addConstraint(Sketcher.Constraint("DistanceX", 13, 1, 13, 2, Q("6.981511 mm")))
sketch7.addConstraint(Sketcher.Constraint("DistanceX", 21, 1, 21, 2, Q("3.257041 mm")))
sketch7.addConstraint(Sketcher.Constraint("DistanceX", -1, 1, 19, 2, Q("9.946302 mm")))
sketch7.addConstraint(Sketcher.Constraint("DistanceX", 1, 1, 1, 2, Q("3.345996 mm")))
sketch7.addConstraint(Sketcher.Constraint("DistanceX", 3, 1, 3, 2, Q("0.595613 mm")))
sketch7.addConstraint(Sketcher.Constraint("DistanceX", 5, 1, 5, 2, Q("7.470927 mm")))
sketch7.addConstraint(Sketcher.Constraint("DistanceX", 9, 1, 9, 2, Q("6.845645 mm")))
sketch7.addConstraint(Sketcher.Constraint("DistanceX", 17, 1, 17, 2, Q("7.424017 mm")))
sketch7.addConstraint(Sketcher.Constraint("DistanceY", 2, 2, 2, 1, Q("5.989983 mm")))
sketch7.addConstraint(Sketcher.Constraint("DistanceY", 22, 2, -1, 1, Q("11.16765 mm")))
pocket3 = body.newObject("PartDesign::Pocket", "Pocket002")
pocket3.Profile = sketch7
pocket3.Length = Q("0.128 in")
doc.recompute()

fillet = body.newObject("PartDesign::Fillet", "Fillet")
fillet.Base = (pocket3, edges_at(pocket3, [(-5.948, -25.4, 10.209)]))
fillet.Radius = 11.840486

doc.recompute()
